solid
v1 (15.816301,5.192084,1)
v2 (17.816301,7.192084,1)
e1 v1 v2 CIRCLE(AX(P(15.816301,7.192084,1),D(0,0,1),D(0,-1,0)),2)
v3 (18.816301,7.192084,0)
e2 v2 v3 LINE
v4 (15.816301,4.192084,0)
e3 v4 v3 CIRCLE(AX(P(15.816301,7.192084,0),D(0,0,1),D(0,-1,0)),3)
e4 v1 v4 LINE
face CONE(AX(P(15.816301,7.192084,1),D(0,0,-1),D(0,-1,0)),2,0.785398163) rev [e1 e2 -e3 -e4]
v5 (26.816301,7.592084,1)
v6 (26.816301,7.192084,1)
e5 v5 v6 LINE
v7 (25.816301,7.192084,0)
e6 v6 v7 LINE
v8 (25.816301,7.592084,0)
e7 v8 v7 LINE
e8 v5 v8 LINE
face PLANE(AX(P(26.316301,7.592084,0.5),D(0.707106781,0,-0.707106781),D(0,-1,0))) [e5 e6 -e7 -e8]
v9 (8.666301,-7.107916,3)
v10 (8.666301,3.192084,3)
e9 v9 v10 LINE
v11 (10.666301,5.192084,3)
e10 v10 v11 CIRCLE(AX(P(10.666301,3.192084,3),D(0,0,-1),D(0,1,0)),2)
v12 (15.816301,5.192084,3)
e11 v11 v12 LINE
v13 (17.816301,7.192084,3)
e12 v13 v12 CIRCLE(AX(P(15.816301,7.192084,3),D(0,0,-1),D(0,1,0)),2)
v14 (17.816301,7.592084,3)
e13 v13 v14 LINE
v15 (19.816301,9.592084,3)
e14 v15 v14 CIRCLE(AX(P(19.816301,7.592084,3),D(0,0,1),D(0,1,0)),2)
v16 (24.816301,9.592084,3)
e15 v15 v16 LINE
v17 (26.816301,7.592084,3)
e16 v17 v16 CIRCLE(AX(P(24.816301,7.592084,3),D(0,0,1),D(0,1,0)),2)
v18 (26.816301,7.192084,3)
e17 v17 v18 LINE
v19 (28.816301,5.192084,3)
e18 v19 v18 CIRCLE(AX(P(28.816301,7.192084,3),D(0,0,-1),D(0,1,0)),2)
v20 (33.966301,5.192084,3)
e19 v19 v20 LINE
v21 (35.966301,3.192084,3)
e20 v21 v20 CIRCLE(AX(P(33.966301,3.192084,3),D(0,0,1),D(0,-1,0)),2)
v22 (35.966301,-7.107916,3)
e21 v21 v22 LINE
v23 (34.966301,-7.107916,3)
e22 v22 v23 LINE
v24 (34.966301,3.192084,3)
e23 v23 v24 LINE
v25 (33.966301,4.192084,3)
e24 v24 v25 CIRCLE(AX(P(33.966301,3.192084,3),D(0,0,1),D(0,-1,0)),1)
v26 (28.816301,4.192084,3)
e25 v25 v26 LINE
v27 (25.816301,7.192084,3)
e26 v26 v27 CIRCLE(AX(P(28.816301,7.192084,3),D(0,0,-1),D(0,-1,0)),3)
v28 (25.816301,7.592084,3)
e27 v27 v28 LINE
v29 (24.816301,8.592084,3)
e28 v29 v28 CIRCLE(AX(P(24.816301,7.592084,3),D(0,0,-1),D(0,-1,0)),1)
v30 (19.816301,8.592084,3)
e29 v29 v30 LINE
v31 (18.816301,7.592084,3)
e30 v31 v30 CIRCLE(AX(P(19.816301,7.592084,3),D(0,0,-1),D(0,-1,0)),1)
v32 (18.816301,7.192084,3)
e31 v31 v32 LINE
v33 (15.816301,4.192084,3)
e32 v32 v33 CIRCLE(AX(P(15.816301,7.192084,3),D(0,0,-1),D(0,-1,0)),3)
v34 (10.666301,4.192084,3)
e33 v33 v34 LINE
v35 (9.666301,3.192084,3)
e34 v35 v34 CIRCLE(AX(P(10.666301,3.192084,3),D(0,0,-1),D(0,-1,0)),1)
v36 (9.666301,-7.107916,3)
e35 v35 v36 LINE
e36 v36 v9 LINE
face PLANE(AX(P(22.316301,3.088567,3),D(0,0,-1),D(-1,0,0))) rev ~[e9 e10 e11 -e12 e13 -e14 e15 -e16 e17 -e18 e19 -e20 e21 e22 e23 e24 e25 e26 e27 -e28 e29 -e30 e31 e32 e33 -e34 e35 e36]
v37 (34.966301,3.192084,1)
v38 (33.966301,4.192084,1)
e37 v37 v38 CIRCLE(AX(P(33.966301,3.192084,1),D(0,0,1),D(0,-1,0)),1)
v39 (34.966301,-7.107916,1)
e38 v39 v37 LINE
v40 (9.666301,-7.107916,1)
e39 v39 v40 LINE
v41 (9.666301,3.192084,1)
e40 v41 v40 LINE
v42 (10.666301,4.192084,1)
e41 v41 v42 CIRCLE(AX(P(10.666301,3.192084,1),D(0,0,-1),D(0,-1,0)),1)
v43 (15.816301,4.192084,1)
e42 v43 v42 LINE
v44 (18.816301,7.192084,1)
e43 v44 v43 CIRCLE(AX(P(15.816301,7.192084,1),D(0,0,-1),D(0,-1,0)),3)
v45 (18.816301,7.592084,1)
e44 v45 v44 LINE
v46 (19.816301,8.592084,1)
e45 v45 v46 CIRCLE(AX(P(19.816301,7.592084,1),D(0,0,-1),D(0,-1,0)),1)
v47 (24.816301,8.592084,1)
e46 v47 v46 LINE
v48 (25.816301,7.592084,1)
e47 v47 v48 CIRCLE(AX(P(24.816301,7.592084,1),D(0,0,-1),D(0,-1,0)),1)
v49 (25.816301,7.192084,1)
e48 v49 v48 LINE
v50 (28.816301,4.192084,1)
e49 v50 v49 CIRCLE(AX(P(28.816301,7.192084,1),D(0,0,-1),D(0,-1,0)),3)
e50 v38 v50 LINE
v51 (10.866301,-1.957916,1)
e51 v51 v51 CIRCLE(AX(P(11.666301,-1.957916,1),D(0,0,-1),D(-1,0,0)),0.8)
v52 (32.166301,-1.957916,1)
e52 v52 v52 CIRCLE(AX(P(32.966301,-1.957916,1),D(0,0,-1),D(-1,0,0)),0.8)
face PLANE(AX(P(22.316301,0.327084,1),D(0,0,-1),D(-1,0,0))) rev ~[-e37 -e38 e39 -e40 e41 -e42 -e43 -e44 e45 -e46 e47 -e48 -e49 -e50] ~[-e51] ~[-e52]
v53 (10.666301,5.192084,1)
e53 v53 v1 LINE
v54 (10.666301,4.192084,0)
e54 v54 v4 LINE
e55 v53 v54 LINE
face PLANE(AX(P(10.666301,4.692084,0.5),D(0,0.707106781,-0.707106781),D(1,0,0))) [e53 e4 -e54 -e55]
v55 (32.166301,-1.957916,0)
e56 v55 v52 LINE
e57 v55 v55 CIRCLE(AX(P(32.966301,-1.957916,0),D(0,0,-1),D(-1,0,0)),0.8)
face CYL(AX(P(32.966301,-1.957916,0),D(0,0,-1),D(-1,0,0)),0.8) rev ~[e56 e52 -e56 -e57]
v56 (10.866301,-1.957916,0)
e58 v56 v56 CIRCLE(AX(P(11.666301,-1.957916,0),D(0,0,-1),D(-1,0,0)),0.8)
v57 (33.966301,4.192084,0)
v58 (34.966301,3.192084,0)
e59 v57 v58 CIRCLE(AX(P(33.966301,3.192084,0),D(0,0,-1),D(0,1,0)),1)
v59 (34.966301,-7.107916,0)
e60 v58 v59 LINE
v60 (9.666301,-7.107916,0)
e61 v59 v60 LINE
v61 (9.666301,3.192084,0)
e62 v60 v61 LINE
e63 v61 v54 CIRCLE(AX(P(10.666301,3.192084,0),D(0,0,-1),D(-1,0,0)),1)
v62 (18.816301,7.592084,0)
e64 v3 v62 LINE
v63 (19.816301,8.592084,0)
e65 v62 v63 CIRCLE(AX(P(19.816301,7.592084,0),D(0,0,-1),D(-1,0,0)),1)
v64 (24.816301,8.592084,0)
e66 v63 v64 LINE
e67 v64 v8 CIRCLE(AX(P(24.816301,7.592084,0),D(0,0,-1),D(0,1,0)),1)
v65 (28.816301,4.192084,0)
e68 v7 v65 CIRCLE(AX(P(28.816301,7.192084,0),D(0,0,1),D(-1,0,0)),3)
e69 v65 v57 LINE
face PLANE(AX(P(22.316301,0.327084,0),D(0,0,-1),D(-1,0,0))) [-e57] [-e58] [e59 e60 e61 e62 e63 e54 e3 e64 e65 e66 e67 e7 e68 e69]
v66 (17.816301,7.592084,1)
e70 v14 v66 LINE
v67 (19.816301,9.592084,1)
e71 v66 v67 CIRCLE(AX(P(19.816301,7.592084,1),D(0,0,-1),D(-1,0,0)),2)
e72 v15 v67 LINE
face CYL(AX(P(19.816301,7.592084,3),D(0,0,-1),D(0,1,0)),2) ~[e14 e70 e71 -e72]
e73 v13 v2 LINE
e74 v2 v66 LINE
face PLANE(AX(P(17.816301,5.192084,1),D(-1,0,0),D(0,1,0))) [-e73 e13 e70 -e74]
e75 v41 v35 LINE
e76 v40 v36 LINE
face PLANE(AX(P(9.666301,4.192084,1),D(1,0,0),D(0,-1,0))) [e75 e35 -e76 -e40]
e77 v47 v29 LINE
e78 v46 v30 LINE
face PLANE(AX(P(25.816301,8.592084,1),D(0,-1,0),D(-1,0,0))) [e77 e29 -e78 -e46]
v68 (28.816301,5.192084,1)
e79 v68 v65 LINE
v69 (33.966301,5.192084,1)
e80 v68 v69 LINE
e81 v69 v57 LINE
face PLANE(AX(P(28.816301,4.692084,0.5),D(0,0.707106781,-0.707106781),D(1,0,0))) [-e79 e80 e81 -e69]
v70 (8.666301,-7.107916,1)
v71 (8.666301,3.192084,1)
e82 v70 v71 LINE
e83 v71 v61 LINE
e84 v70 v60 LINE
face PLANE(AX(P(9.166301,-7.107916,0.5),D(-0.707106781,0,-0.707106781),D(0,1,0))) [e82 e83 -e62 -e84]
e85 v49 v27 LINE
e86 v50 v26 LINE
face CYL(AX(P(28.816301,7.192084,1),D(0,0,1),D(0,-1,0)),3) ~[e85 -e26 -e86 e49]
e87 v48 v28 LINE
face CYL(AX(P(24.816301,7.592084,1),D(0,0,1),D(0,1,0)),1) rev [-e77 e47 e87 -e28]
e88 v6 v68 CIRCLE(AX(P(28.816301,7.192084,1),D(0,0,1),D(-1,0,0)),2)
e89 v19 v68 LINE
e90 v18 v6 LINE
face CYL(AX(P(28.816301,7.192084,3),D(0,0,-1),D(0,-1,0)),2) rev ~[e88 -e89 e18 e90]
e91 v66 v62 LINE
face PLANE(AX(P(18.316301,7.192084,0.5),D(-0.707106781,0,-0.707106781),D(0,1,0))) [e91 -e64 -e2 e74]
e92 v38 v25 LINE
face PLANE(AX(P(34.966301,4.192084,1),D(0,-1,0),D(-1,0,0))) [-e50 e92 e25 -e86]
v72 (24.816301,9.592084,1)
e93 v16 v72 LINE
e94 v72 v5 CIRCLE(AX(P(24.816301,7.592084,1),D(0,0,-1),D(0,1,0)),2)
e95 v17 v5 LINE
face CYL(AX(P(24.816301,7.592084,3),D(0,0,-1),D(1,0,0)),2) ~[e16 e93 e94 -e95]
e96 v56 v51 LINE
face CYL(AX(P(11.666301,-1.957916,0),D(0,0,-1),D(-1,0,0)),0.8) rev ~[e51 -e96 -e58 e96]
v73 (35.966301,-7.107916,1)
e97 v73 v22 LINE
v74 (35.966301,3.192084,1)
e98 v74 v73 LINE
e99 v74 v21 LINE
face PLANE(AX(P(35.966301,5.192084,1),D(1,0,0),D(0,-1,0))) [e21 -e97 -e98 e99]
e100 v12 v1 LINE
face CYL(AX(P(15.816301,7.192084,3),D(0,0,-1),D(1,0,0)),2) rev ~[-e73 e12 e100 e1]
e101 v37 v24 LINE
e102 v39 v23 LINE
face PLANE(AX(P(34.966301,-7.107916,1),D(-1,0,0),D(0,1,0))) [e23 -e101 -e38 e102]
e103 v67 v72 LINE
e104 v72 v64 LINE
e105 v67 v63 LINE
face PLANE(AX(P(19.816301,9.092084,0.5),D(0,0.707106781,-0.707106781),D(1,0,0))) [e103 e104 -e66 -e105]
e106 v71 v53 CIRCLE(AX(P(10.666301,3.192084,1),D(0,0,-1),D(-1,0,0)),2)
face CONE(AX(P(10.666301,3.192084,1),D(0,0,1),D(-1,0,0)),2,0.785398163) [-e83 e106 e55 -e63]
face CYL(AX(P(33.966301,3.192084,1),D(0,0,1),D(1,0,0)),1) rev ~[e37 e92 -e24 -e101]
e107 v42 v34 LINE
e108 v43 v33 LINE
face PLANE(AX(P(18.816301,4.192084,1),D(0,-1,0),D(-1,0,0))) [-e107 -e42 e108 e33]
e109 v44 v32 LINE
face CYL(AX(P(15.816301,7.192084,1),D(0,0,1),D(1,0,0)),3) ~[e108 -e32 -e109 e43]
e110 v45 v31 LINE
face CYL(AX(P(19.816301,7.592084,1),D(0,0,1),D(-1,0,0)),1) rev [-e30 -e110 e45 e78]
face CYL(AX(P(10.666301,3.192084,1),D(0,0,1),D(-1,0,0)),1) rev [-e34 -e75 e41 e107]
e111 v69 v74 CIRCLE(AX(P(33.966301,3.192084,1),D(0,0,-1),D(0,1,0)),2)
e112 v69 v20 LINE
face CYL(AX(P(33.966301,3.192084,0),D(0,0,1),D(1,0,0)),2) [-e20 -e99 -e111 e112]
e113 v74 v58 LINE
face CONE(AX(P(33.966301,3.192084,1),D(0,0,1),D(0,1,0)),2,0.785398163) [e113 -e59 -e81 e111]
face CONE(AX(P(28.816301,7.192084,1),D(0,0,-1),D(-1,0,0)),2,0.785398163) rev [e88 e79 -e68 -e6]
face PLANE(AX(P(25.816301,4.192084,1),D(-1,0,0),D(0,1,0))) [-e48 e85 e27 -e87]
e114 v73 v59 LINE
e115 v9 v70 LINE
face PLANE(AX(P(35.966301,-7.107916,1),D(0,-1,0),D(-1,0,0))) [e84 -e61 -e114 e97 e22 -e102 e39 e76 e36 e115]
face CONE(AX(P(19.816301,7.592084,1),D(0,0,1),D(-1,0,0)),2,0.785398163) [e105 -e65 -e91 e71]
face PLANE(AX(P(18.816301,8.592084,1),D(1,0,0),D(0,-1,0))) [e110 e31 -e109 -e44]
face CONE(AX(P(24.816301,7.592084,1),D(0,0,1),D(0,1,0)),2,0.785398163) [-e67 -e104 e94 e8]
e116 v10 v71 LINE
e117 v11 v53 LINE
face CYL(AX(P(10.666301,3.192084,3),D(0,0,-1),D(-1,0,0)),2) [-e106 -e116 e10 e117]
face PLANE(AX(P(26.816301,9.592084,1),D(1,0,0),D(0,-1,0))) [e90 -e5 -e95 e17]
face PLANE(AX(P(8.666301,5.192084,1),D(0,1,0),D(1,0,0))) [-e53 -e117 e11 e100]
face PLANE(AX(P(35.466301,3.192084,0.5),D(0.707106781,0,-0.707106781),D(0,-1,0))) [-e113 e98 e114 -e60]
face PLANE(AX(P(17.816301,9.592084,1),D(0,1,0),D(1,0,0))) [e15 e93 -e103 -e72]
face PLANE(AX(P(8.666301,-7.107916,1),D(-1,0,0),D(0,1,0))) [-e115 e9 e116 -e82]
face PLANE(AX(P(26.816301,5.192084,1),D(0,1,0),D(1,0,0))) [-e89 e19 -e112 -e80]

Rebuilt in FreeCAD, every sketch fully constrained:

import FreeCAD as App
import Part
import Sketcher


def edges_at(feature, points):
    """Names of the edges that pass closest to the given points."""
    edges = feature.Shape.Edges
    near = lambda p: min(range(len(edges)), key=lambda i: edges[i].distToShape(Part.Vertex(*p))[0])
    return sorted({f"Edge{near(p) + 1}" for p in points})

doc = App.newDocument("Part")
body = doc.addObject("PartDesign::Body", "Body")

# Sketch on XY plane
sketch1 = doc.addObject("Sketcher::SketchObject", "Sketch")
body.addObject(sketch1)
sketch1.AttachmentSupport = (doc.XY_Plane, [""])
sketch1.MapMode = "FlatFace"
sketch1.addGeometry(Part.LineSegment(App.Vector(36, 5.2, 0), App.Vector(26.8, 5.2, 0)), False)
sketch1.addGeometry(Part.LineSegment(App.Vector(26.8, 5.2, 0), App.Vector(26.8, 9.6, 0)), False)
sketch1.addGeometry(Part.LineSegment(App.Vector(26.8, 9.6, 0), App.Vector(17.8, 9.6, 0)), False)
sketch1.addGeometry(Part.LineSegment(App.Vector(17.8, 9.6, 0), App.Vector(17.8, 5.2, 0)), False)
sketch1.addGeometry(Part.LineSegment(App.Vector(17.8, 5.2, 0), App.Vector(8.7, 5.2, 0)), False)
sketch1.addGeometry(Part.LineSegment(App.Vector(8.7, 5.2, 0), App.Vector(8.7, -7.1, 0)), False)
sketch1.addGeometry(Part.LineSegment(App.Vector(8.7, -7.1, 0), App.Vector(36, -7.1, 0)), False)
sketch1.addGeometry(Part.LineSegment(App.Vector(36, -7.1, 0), App.Vector(36, 5.2, 0)), False)
sketch1.addConstraint(Sketcher.Constraint("Coincident", 0, 2, 1, 1))
sketch1.addConstraint(Sketcher.Constraint("Coincident", 1, 2, 2, 1))
sketch1.addConstraint(Sketcher.Constraint("Coincident", 2, 2, 3, 1))
sketch1.addConstraint(Sketcher.Constraint("Coincident", 3, 2, 4, 1))
sketch1.addConstraint(Sketcher.Constraint("Coincident", 4, 2, 5, 1))
sketch1.addConstraint(Sketcher.Constraint("Coincident", 5, 2, 6, 1))
sketch1.addConstraint(Sketcher.Constraint("Coincident", 6, 2, 7, 1))
sketch1.addConstraint(Sketcher.Constraint("Coincident", 7, 2, 0, 1))
sketch1.addConstraint(Sketcher.Constraint("Horizontal", 0))
sketch1.addConstraint(Sketcher.Constraint("Vertical", 1))
sketch1.addConstraint(Sketcher.Constraint("Horizontal", 2))
sketch1.addConstraint(Sketcher.Constraint("Vertical", 3))
sketch1.addConstraint(Sketcher.Constraint("Horizontal", 4))
sketch1.addConstraint(Sketcher.Constraint("Vertical", 5))
sketch1.addConstraint(Sketcher.Constraint("Horizontal", 6))
sketch1.addConstraint(Sketcher.Constraint("Vertical", 7))
sketch1.addConstraint(Sketcher.Constraint("Horizontal", 0, 2, 3, 2))
sketch1.addConstraint(Sketcher.Constraint("Equal", 0, 4))
sketch1.addConstraint(Sketcher.Constraint("DistanceX", 2, 2, 2, 1, 9.0))
sketch1.addConstraint(Sketcher.Constraint("DistanceX", 6, 1, 6, 2, 27.3))
sketch1.addConstraint(Sketcher.Constraint("DistanceY", 1, 1, 1, 2, 4.4))
sketch1.addConstraint(Sketcher.Constraint("DistanceY", 5, 2, 5, 1, 12.3))
sketch1.addConstraint(Sketcher.Constraint("DistanceX", -1, 1, 0, 2, 26.816301))
sketch1.addConstraint(Sketcher.Constraint("DistanceY", -1, 1, 0, 2, 5.192084))
pad1 = doc.addObject("PartDesign::Pad", "Pad")
body.addObject(pad1)
pad1.Profile = sketch1
pad1.Length = 1

# Sketch on XY plane
sketch2 = doc.addObject("Sketcher::SketchObject", "Sketch001")
body.addObject(sketch2)
sketch2.AttachmentSupport = (doc.XY_Plane, [""])
sketch2.MapMode = "FlatFace"
sketch2.AttachmentOffset = App.Placement(App.Vector(0, 0, 1), App.Rotation())
sketch2.addGeometry(Part.LineSegment(App.Vector(35, 4.2, 0), App.Vector(35, -7.1, 0)), False)
sketch2.addGeometry(Part.LineSegment(App.Vector(35, -7.1, 0), App.Vector(36, -7.1, 0)), False)
sketch2.addGeometry(Part.LineSegment(App.Vector(36, -7.1, 0), App.Vector(36, 5.2, 0)), False)
sketch2.addGeometry(Part.LineSegment(App.Vector(36, 5.2, 0), App.Vector(26.8, 5.2, 0)), False)
sketch2.addGeometry(Part.LineSegment(App.Vector(26.8, 5.2, 0), App.Vector(26.8, 9.6, 0)), False)
sketch2.addGeometry(Part.LineSegment(App.Vector(26.8, 9.6, 0), App.Vector(17.8, 9.6, 0)), False)
sketch2.addGeometry(Part.LineSegment(App.Vector(17.8, 9.6, 0), App.Vector(17.8, 5.2, 0)), False)
sketch2.addGeometry(Part.LineSegment(App.Vector(17.8, 5.2, 0), App.Vector(8.7, 5.2, 0)), False)
sketch2.addGeometry(Part.LineSegment(App.Vector(8.7, 5.2, 0), App.Vector(8.7, -7.1, 0)), False)
sketch2.addGeometry(Part.LineSegment(App.Vector(8.7, -7.1, 0), App.Vector(9.7, -7.1, 0)), False)
sketch2.addGeometry(Part.LineSegment(App.Vector(9.7, -7.1, 0), App.Vector(9.7, 4.2, 0)), False)
sketch2.addGeometry(Part.LineSegment(App.Vector(9.7, 4.2, 0), App.Vector(18.8, 4.2, 0)), False)
sketch2.addGeometry(Part.LineSegment(App.Vector(18.8, 4.2, 0), App.Vector(18.8, 8.6, 0)), False)
sketch2.addGeometry(Part.LineSegment(App.Vector(18.8, 8.6, 0), App.Vector(25.8, 8.6, 0)), False)
sketch2.addGeometry(Part.LineSegment(App.Vector(25.8, 8.6, 0), App.Vector(25.8, 4.2, 0)), False)
sketch2.addGeometry(Part.LineSegment(App.Vector(25.8, 4.2, 0), App.Vector(35, 4.2, 0)), False)
sketch2.addConstraint(Sketcher.Constraint("Coincident", 0, 2, 1, 1))
sketch2.addConstraint(Sketcher.Constraint("Coincident", 1, 2, 2, 1))
sketch2.addConstraint(Sketcher.Constraint("Coincident", 2, 2, 3, 1))
sketch2.addConstraint(Sketcher.Constraint("Coincident", 3, 2, 4, 1))
sketch2.addConstraint(Sketcher.Constraint("Coincident", 4, 2, 5, 1))
sketch2.addConstraint(Sketcher.Constraint("Coincident", 5, 2, 6, 1))
sketch2.addConstraint(Sketcher.Constraint("Coincident", 6, 2, 7, 1))
sketch2.addConstraint(Sketcher.Constraint("Coincident", 7, 2, 8, 1))
sketch2.addConstraint(Sketcher.Constraint("Coincident", 8, 2, 9, 1))
sketch2.addConstraint(Sketcher.Constraint("Coincident", 9, 2, 10, 1))
sketch2.addConstraint(Sketcher.Constraint("Coincident", 10, 2, 11, 1))
sketch2.addConstraint(Sketcher.Constraint("Coincident", 11, 2, 12, 1))
sketch2.addConstraint(Sketcher.Constraint("Coincident", 12, 2, 13, 1))
sketch2.addConstraint(Sketcher.Constraint("Coincident", 13, 2, 14, 1))
sketch2.addConstraint(Sketcher.Constraint("Coincident", 14, 2, 15, 1))
sketch2.addConstraint(Sketcher.Constraint("Coincident", 15, 2, 0, 1))
sketch2.addConstraint(Sketcher.Constraint("Vertical", 0))
sketch2.addConstraint(Sketcher.Constraint("Horizontal", 1))
sketch2.addConstraint(Sketcher.Constraint("Vertical", 2))
sketch2.addConstraint(Sketcher.Constraint("Horizontal", 3))
sketch2.addConstraint(Sketcher.Constraint("Vertical", 4))
sketch2.addConstraint(Sketcher.Constraint("Horizontal", 5))
sketch2.addConstraint(Sketcher.Constraint("Vertical", 6))
sketch2.addConstraint(Sketcher.Constraint("Horizontal", 7))
sketch2.addConstraint(Sketcher.Constraint("Vertical", 8))
sketch2.addConstraint(Sketcher.Constraint("Horizontal", 9))
sketch2.addConstraint(Sketcher.Constraint("Vertical", 10))
sketch2.addConstraint(Sketcher.Constraint("Horizontal", 11))
sketch2.addConstraint(Sketcher.Constraint("Vertical", 12))
sketch2.addConstraint(Sketcher.Constraint("Horizontal", 13))
sketch2.addConstraint(Sketcher.Constraint("Vertical", 14))
sketch2.addConstraint(Sketcher.Constraint("Horizontal", 15))
sketch2.addConstraint(Sketcher.Constraint("Horizontal", 3, 2, 6, 2))
sketch2.addConstraint(Sketcher.Constraint("Horizontal", 1, 2, 8, 2))
sketch2.addConstraint(Sketcher.Constraint("Horizontal", 11, 2, 14, 2))
sketch2.addConstraint(Sketcher.Constraint("Equal", 3, 7))
sketch2.addConstraint(Sketcher.Constraint("Equal", 1, 9))
sketch2.addConstraint(Sketcher.Constraint("Equal", 7, 11))
sketch2.addConstraint(Sketcher.Constraint("Equal", 11, 15))
sketch2.addConstraint(Sketcher.Constraint("Equal", 6, 12))
sketch2.addConstraint(Sketcher.Constraint("DistanceX", 1, 1, 1, 2, 1.0))
sketch2.addConstraint(Sketcher.Constraint("DistanceX", 5, 2, 5, 1, 9.0))
sketch2.addConstraint(Sketcher.Constraint("DistanceY", 0, 2, 0, 1, 11.3))
sketch2.addConstraint(Sketcher.Constraint("DistanceY", 2, 1, 2, 2, 12.3))
sketch2.addConstraint(Sketcher.Constraint("DistanceY", 4, 1, 4, 2, 4.4))
sketch2.addConstraint(Sketcher.Constraint("DistanceX", 3, 2, 3, 1, 9.15))
sketch2.addConstraint(Sketcher.Constraint("DistanceX", -1, 1, 0, 2, 34.966301))
sketch2.addConstraint(Sketcher.Constraint("DistanceY", 0, 2, -1, 1, 7.107916))
pad2 = doc.addObject("PartDesign::Pad", "Pad001")
body.addObject(pad2)
pad2.Profile = sketch2
pad2.Length = 2
doc.recompute()

fillet = doc.addObject("PartDesign::Fillet", "Fillet")
body.addObject(fillet)
fillet.Base = (pad2, edges_at(pad2, [
    (9.666, 4.192, 2),
    (18.816, 8.592, 2),
    (25.816, 8.592, 2),
    (34.966, 4.192, 2),
]))
fillet.Radius = 1
doc.recompute()

fillet2 = doc.addObject("PartDesign::Fillet", "Fillet001")
body.addObject(fillet2)
fillet2.Base = (fillet, edges_at(fillet, [
    (8.666, 5.192, 1.5),
    (17.816, 5.192, 1.5),
    (17.816, 9.592, 1.5),
    (26.816, 9.592, 1.5),
    (26.816, 5.192, 1.5),
    (35.966, 5.192, 1.5),
]))
fillet2.Radius = 2
doc.recompute()

fillet3 = doc.addObject("PartDesign::Fillet", "Fillet002")
body.addObject(fillet3)
fillet3.Base = (fillet2, edges_at(fillet2, [(18.816, 4.192, 2), (25.816, 4.192, 2)]))
fillet3.Radius = 3

# Sketch on XY plane
sketch3 = doc.addObject("Sketcher::SketchObject", "Sketch002")
body.addObject(sketch3)
sketch3.AttachmentSupport = (doc.XY_Plane, [""])
sketch3.MapMode = "FlatFace"
sketch3.addGeometry(Part.Circle(App.Vector(33, -2, 0), App.Vector(0, 0, 1), 0.8), False)
sketch3.addGeometry(Part.Circle(App.Vector(11.7, -2, 0), App.Vector(0, 0, 1), 0.8), False)
sketch3.addConstraint(Sketcher.Constraint("Equal", 0, 1))
sketch3.addConstraint(Sketcher.Constraint("Horizontal", 0, 3, 1, 3))
sketch3.addConstraint(Sketcher.Constraint("Diameter", 0, 1.6))
sketch3.addConstraint(Sketcher.Constraint("DistanceX", 1, 3, 0, 3, 21.3))
sketch3.addConstraint(Sketcher.Constraint("DistanceX", -1, 1, 0, 3, 32.966301))
sketch3.addConstraint(Sketcher.Constraint("DistanceY", 0, 3, -1, 1, 1.957916))
pocket1 = doc.addObject("PartDesign::Pocket", "Pocket")
body.addObject(pocket1)
pocket1.Profile = sketch3
pocket1.Type = "ThroughAll"
pocket1.Reversed = True
doc.recompute()

chamfer = doc.addObject("PartDesign::Chamfer", "Chamfer")
body.addObject(chamfer)
chamfer.Base = (pocket1, edges_at(pocket1, [
    (13.241, 5.192, 0),
    (17.816, 7.392, 0),
    (8.666, -1.958, 0),
    (35.966, -1.958, 0),
    (22.316, 9.592, 0),
    (26.231, 9.006, 0),
    (18.402, 9.006, 0),
    (35.381, 4.606, 0),
    (9.252, 4.606, 0),
    (27.402, 5.778, 0),
    (17.231, 5.778, 0),
    (26.816, 7.392, 0),
    (31.391, 5.192, 0),
]))
chamfer.Size = 1

doc.recompute()
